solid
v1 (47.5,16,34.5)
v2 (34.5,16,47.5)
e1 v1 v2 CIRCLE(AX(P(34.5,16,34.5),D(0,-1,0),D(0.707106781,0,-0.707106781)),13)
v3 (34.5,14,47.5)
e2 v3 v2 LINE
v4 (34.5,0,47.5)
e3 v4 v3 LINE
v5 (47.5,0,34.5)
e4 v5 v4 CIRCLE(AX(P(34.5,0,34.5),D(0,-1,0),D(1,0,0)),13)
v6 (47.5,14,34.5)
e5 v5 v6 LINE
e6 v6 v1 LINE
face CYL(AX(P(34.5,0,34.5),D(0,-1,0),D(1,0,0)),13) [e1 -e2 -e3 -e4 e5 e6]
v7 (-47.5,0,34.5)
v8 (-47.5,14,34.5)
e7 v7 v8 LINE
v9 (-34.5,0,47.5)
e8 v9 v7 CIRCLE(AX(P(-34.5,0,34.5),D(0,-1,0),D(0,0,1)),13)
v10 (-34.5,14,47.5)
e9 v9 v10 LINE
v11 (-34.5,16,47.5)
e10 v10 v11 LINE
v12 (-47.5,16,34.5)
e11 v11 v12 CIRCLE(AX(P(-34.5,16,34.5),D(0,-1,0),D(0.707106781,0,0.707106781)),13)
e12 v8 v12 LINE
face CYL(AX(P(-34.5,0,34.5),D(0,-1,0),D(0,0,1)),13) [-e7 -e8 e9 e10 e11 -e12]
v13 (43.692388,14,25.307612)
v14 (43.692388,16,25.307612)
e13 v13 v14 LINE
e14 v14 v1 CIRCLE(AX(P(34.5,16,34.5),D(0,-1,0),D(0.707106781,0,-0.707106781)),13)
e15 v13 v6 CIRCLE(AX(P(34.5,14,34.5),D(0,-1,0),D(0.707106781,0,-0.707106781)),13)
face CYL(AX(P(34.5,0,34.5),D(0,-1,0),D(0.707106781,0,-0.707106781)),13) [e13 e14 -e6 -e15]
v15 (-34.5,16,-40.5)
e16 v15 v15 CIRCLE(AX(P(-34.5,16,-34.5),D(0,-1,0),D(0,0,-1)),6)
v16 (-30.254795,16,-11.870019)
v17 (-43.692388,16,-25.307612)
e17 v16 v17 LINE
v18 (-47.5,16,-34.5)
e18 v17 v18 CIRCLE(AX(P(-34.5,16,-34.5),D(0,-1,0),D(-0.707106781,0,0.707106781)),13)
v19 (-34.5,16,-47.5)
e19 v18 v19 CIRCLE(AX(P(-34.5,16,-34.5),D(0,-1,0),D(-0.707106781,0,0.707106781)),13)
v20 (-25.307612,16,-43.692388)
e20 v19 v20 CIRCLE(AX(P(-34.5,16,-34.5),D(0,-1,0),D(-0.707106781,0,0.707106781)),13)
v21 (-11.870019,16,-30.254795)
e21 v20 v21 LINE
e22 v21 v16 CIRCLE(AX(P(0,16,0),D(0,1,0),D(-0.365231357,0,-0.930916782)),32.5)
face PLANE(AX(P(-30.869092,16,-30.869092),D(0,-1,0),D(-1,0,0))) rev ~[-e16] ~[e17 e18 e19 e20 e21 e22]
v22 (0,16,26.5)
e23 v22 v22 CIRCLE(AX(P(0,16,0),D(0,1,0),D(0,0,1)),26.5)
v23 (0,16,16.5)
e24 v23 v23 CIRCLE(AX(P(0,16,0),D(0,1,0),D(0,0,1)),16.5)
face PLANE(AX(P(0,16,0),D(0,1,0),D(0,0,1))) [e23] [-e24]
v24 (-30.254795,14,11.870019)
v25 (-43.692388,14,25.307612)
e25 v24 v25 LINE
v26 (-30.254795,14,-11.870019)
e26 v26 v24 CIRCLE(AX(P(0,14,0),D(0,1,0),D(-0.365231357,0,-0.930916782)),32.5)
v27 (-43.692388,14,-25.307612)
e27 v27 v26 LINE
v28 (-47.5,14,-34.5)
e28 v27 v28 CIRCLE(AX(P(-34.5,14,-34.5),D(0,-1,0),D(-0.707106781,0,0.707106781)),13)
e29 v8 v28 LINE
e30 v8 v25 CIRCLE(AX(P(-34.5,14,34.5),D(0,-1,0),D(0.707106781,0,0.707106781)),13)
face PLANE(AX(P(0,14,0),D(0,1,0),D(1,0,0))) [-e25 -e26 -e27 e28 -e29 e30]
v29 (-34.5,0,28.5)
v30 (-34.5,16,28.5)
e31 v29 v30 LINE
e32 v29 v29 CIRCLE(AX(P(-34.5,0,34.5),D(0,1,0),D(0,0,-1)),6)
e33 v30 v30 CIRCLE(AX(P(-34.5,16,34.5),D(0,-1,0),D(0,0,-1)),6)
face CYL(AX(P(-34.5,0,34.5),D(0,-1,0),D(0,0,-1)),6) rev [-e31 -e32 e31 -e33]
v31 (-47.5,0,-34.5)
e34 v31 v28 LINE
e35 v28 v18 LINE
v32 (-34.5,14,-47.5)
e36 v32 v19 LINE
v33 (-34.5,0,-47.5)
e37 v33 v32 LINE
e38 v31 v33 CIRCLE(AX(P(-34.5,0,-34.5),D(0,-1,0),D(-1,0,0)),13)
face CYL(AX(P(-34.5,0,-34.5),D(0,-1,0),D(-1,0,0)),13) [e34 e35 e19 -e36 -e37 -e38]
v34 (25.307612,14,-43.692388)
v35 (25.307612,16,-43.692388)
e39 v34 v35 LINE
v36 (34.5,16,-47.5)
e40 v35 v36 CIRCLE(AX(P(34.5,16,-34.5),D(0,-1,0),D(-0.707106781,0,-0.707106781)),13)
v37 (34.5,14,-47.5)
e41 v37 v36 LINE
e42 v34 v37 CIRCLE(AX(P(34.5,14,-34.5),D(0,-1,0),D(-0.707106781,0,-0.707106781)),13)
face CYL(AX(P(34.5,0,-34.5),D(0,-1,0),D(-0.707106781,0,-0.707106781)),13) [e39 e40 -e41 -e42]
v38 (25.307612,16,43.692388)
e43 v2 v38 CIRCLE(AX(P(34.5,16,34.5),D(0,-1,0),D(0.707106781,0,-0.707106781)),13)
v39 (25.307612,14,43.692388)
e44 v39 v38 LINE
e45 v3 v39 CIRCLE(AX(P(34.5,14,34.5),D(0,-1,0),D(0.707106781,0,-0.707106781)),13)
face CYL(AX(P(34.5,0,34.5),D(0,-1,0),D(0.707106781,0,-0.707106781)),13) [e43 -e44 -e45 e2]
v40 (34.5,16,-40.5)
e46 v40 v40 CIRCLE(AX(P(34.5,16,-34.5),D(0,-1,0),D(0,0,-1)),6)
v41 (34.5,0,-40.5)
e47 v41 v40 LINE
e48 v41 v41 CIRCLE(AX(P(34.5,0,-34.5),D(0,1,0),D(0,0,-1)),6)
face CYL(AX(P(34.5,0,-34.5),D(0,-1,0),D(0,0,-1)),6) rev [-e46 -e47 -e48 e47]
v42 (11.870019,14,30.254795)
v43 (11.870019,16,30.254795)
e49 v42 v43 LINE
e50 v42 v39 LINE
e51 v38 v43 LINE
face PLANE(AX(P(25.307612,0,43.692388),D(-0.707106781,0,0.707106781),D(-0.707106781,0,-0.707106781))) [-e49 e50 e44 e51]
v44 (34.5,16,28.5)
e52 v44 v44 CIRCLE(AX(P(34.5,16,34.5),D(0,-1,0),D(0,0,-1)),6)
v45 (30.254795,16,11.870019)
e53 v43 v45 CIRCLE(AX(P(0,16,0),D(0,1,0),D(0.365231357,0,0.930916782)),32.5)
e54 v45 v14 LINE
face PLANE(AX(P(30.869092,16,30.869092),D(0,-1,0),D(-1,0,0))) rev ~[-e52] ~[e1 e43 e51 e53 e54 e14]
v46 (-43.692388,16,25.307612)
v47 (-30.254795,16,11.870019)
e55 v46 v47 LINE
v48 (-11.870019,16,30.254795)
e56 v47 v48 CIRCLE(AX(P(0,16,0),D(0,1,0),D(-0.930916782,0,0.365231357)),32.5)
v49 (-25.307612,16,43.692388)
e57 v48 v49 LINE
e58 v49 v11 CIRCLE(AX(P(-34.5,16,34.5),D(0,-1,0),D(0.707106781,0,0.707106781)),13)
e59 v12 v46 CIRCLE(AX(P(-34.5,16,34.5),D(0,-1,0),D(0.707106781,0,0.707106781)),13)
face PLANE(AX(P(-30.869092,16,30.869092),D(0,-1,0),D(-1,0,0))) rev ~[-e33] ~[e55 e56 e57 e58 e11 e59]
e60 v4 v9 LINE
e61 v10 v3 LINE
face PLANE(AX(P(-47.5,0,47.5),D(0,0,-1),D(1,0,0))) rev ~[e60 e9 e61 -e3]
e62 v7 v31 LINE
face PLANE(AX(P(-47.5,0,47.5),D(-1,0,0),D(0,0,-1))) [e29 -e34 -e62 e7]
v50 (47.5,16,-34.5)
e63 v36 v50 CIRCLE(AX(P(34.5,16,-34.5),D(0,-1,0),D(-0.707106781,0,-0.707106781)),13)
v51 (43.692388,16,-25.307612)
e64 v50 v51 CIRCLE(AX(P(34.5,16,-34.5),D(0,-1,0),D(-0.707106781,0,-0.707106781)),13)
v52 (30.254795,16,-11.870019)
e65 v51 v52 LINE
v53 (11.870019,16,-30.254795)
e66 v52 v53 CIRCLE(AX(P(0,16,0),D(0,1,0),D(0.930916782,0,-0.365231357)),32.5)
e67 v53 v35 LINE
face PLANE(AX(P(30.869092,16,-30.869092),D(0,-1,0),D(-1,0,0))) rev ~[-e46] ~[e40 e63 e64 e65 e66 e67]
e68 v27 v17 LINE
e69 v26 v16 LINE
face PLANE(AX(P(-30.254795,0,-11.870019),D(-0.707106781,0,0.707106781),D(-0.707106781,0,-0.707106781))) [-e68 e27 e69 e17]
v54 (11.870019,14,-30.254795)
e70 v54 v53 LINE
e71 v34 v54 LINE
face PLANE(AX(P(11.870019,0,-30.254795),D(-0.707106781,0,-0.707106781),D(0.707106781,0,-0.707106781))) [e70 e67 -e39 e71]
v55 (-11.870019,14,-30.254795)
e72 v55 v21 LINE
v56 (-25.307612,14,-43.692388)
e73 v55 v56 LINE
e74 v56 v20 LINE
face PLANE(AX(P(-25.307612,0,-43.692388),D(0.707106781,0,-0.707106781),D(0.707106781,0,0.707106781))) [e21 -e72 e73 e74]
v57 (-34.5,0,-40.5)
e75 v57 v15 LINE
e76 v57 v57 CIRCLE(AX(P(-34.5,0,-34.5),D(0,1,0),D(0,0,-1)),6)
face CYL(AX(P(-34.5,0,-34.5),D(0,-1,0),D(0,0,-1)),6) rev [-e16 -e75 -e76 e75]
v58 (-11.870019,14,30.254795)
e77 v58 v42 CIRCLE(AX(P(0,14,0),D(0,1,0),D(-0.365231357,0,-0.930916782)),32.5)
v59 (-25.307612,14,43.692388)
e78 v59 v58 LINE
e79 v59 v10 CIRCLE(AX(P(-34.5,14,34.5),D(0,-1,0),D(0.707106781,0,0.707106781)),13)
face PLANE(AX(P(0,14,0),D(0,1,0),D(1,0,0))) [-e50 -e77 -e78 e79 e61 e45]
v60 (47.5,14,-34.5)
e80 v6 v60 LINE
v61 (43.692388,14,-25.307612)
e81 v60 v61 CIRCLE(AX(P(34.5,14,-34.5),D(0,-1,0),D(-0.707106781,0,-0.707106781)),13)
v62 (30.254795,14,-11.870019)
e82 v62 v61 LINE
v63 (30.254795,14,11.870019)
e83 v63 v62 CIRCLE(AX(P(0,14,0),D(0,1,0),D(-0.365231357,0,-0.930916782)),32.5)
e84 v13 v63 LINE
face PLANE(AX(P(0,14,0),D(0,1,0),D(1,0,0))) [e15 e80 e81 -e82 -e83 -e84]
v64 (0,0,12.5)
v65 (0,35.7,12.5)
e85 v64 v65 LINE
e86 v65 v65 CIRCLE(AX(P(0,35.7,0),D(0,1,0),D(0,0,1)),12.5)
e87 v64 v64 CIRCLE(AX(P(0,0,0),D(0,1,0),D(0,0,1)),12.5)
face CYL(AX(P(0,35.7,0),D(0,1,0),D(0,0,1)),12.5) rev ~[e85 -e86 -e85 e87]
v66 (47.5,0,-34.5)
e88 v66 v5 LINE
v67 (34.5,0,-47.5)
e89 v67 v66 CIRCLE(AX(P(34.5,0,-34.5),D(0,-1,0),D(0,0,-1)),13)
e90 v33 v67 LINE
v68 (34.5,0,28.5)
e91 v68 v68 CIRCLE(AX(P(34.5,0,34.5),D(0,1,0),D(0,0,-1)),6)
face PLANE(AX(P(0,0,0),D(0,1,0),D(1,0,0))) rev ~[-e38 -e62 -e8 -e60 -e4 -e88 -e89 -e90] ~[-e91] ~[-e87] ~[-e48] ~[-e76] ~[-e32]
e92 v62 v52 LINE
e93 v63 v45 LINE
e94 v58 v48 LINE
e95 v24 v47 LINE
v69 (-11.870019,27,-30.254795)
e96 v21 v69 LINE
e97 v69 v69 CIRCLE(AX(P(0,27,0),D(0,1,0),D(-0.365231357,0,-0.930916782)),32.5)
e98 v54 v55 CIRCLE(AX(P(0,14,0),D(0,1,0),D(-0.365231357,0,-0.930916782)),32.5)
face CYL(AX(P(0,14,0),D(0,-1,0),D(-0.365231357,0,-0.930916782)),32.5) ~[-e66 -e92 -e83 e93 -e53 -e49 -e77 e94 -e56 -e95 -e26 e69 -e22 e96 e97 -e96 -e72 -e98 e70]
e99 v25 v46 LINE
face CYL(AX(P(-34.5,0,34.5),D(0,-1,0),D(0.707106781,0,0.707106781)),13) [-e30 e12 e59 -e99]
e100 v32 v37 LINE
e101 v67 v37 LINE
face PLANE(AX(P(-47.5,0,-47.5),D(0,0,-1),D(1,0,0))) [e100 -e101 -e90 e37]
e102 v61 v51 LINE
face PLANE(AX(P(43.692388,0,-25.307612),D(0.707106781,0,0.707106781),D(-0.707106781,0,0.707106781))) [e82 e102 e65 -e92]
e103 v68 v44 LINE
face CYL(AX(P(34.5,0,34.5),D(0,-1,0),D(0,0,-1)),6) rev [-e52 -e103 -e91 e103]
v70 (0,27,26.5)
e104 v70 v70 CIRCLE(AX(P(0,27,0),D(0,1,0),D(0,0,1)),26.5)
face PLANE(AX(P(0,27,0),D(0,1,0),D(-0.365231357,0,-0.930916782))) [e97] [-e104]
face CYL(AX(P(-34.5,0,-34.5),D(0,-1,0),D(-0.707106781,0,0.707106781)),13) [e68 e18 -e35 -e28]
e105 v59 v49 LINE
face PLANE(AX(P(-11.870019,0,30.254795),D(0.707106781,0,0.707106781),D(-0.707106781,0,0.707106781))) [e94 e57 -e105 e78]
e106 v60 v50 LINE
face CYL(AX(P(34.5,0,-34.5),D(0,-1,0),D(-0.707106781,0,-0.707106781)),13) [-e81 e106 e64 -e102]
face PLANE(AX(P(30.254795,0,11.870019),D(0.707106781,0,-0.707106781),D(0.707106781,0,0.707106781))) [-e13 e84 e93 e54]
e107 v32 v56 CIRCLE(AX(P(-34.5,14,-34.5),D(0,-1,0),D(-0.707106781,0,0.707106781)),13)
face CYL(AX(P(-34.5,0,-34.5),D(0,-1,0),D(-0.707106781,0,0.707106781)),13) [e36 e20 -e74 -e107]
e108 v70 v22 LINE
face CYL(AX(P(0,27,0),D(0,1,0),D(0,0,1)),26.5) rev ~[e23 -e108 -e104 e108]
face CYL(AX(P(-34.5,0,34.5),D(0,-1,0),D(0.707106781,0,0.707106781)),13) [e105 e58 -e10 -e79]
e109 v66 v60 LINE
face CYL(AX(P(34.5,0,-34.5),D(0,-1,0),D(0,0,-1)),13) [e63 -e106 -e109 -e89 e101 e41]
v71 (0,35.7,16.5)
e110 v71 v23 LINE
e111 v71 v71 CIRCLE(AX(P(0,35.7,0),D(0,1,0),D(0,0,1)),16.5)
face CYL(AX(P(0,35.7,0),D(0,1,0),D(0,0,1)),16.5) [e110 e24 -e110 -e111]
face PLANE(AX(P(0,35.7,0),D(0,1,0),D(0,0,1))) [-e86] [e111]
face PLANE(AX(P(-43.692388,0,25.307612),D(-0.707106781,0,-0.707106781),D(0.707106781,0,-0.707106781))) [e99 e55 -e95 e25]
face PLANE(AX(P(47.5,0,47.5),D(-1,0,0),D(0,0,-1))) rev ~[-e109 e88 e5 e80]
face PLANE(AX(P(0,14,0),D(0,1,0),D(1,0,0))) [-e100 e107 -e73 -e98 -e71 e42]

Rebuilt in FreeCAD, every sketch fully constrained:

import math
import FreeCAD as App
import Part
import Sketcher

V = App.Vector
Q = App.Units.Quantity

doc = App.newDocument("Part")
body = doc.addObject("PartDesign::Body", "Body")

# Sketch on XZ plane
sketch1 = body.newObject("Sketcher::SketchObject", "Sketch")
sketch1.AttachmentSupport = (doc.getObject("XZ_Plane"), [""])
sketch1.MapMode = "FlatFace"
sketch1.addGeometry([
    Part.LineSegment(V(-48, -48, 0), V(-48, 48, 0)),
    Part.LineSegment(V(-48, 48, 0), V(48, 48, 0)),
    Part.LineSegment(V(48, 48, 0), V(48, -48, 0)),
    Part.LineSegment(V(48, -48, 0), V(-48, -48, 0)),
], False)
sketch1.addConstraint([
    Sketcher.Constraint("Coincident", 0, 2, 1, 1),
    Sketcher.Constraint("Coincident", 1, 2, 2, 1),
    Sketcher.Constraint("Coincident", 2, 2, 3, 1),
    Sketcher.Constraint("Coincident", 3, 2, 0, 1),
    Sketcher.Constraint("Vertical", 0),
    Sketcher.Constraint("Horizontal", 1),
    Sketcher.Constraint("Vertical", 2),
    Sketcher.Constraint("Horizontal", 3),
    Sketcher.Constraint("Symmetric", 0, 2, 2, 2, -1, 1),
    Sketcher.Constraint("Equal", 3, 0),
    Sketcher.Constraint("DistanceX", 1, 1, 1, 2, Q("95 mm")),
])
pad1 = body.newObject("PartDesign::Pad", "Pad")
pad1.Profile = sketch1
pad1.Length = 14
pad1.Reversed = True

# Sketch on XZ plane
sketch2 = body.newObject("Sketcher::SketchObject", "Sketch001")
sketch2.AttachmentSupport = (doc.getObject("XZ_Plane"), [""])
sketch2.MapMode = "FlatFace"
sketch2.addGeometry([
    Part.LineSegment(V(-44, -25, 0), V(-30, -12, 0)),  # 0
    Part.ArcOfCircle(Part.Circle(V(0, 0, 0), V(0, 0, 1), 32), math.radians(-159), math.radians(-111)),  # 1
    Part.LineSegment(V(-12, -30, 0), V(-25, -44, 0)),  # 2
    Part.ArcOfCircle(Part.Circle(V(-34, -34, 0), V(0, 0, 1), 13), math.radians(135), math.radians(315)),  # 3
    Part.LineSegment(V(25, -44, 0), V(12, -30, 0)),  # 4
    Part.ArcOfCircle(Part.Circle(V(0, 0, 0), V(0, 0, 1), 32), math.radians(-69), math.radians(-21)),  # 5
    Part.LineSegment(V(30, -12, 0), V(44, -25, 0)),  # 6
    Part.ArcOfCircle(Part.Circle(V(34, -34, 0), V(0, 0, 1), 13), math.radians(-135), math.radians(45)),  # 7
    Part.LineSegment(V(44, 25, 0), V(30, 12, 0)),  # 8
    Part.ArcOfCircle(Part.Circle(V(0, 0, 0), V(0, 0, 1), 32), math.radians(21), math.radians(69)),  # 9
    Part.LineSegment(V(12, 30, 0), V(25, 44, 0)),  # 10
    Part.ArcOfCircle(Part.Circle(V(34, 34, 0), V(0, 0, 1), 13), math.radians(-45), math.radians(135)),  # 11
    Part.LineSegment(V(-25, 44, 0), V(-12, 30, 0)),  # 12
    Part.ArcOfCircle(Part.Circle(V(0, 0, 0), V(0, 0, 1), 32), math.radians(111), math.radians(159)),  # 13
    Part.LineSegment(V(-30, 12, 0), V(-44, 25, 0)),  # 14
    Part.ArcOfCircle(Part.Circle(V(-34, 34, 0), V(0, 0, 1), 13), math.radians(45), math.radians(225)),  # 15
], False)
sketch2.addConstraint([
    Sketcher.Constraint("Coincident", 0, 2, 1, 1),
    Sketcher.Constraint("Coincident", 1, 2, 2, 1),
    Sketcher.Constraint("Tangent", 2, 2, 3, 2),
    Sketcher.Constraint("Tangent", 3, 1, 0, 1),
    Sketcher.Constraint("Coincident", 4, 2, 5, 1),
    Sketcher.Constraint("Coincident", 5, 2, 6, 1),
    Sketcher.Constraint("Tangent", 6, 2, 7, 2),
    Sketcher.Constraint("Tangent", 7, 1, 4, 1),
    Sketcher.Constraint("Coincident", 8, 2, 9, 1),
    Sketcher.Constraint("Coincident", 9, 2, 10, 1),
    Sketcher.Constraint("Tangent", 10, 2, 11, 2),
    Sketcher.Constraint("Tangent", 11, 1, 8, 1),
    Sketcher.Constraint("Coincident", 12, 2, 13, 1),
    Sketcher.Constraint("Coincident", 13, 2, 14, 1),
    Sketcher.Constraint("Tangent", 14, 2, 15, 2),
    Sketcher.Constraint("Tangent", 15, 1, 12, 1),
    Sketcher.Constraint("Coincident", 1, 3, -1, 1),
    Sketcher.Constraint("Coincident", 5, 3, -1, 1),
    Sketcher.Constraint("Coincident", 9, 3, -1, 1),
    Sketcher.Constraint("Coincident", 13, 3, -1, 1),
    Sketcher.Constraint("Equal", 1, 5),
    Sketcher.Constraint("Equal", 3, 7),
    Sketcher.Constraint("Equal", 5, 9),
    Sketcher.Constraint("Equal", 7, 11),
    Sketcher.Constraint("Equal", 9, 13),
    Sketcher.Constraint("Equal", 11, 15),
    Sketcher.Constraint("Symmetric", 3, 3, 11, 3, -1, 1),
    Sketcher.Constraint("Symmetric", 7, 3, 15, 3, -1, 1),
    Sketcher.Constraint("Symmetric", 3, 3, 7, 3, -2),
    Sketcher.Constraint("Parallel", 0, 2),
    Sketcher.Constraint("Perpendicular", 2, 4),
    Sketcher.Constraint("Parallel", 4, 6),
    Sketcher.Constraint("Perpendicular", 6, 8),
    Sketcher.Constraint("Parallel", 8, 10),
    Sketcher.Constraint("Perpendicular", 10, 12),
    Sketcher.Constraint("Parallel", 12, 14),
    Sketcher.Constraint("Horizontal", 1, 2, 4, 2),
    Sketcher.Constraint("Equal", 0, 2),
    Sketcher.Constraint("Radius", 3, Q("13 mm")),
    Sketcher.Constraint("Radius", 1, Q("32.5 mm")),
    Sketcher.Constraint("DistanceX", 3, 3, 7, 3, Q("69 mm")),
])
pad2 = body.newObject("PartDesign::Pad", "Pad001")
pad2.Profile = sketch2
pad2.Length = 16
pad2.Reversed = True

# Sketch on XZ plane
sketch3 = body.newObject("Sketcher::SketchObject", "Sketch002")
sketch3.AttachmentSupport = (doc.getObject("XZ_Plane"), [""])
sketch3.MapMode = "FlatFace"
sketch3.AttachmentOffset = App.Placement(V(0, 0, -14), App.Rotation())
sketch3.addGeometry(Part.Circle(V(0, 0, 0), V(0, 0, 1), 32), False)
sketch3.addConstraint([
    Sketcher.Constraint("Coincident", 0, 3, -1, 1),
    Sketcher.Constraint("Diameter", 0, Q("65 mm")),
])
pad3 = body.newObject("PartDesign::Pad", "Pad002")
pad3.Profile = sketch3
pad3.Length = 13
pad3.Reversed = True

# Sketch on XZ plane
sketch4 = body.newObject("Sketcher::SketchObject", "Sketch003")
sketch4.AttachmentSupport = (doc.getObject("XZ_Plane"), [""])
sketch4.MapMode = "FlatFace"
sketch4.AttachmentOffset = App.Placement(V(0, 0, -27), App.Rotation())
sketch4.addGeometry(Part.Circle(V(0, 0, 0), V(0, 0, 1), 12), False)
sketch4.addConstraint([
    Sketcher.Constraint("Coincident", 0, 3, -1, 1),
    Sketcher.Constraint("Diameter", 0, Q("25 mm")),
])
pocket1 = body.newObject("PartDesign::Pocket", "Pocket")
pocket1.Profile = sketch4
pocket1.Type = "ThroughAll"
pocket1.Reversed = True

# Sketch on XZ plane
sketch5 = body.newObject("Sketcher::SketchObject", "Sketch004")
sketch5.AttachmentSupport = (doc.getObject("XZ_Plane"), [""])
sketch5.MapMode = "FlatFace"
sketch5.AttachmentOffset = App.Placement(V(0, 0, -27), App.Rotation())
sketch5.addGeometry([
    Part.Circle(V(0, 0, 0), V(0, 0, 1), 26),
    Part.Circle(V(0, 0, 0), V(0, 0, 1), 16),
], False)
sketch5.addConstraint([
    Sketcher.Constraint("Coincident", 0, 3, -1, 1),
    Sketcher.Constraint("Coincident", 1, 3, -1, 1),
    Sketcher.Constraint("Diameter", 0, Q("53 mm")),
    Sketcher.Constraint("Diameter", 1, Q("33 mm")),
])
pocket2 = body.newObject("PartDesign::Pocket", "Pocket001")
pocket2.Profile = sketch5
pocket2.Length = 11
pocket2.Reversed = True

# Sketch on XZ plane
sketch6 = body.newObject("Sketcher::SketchObject", "Sketch005")
sketch6.AttachmentSupport = (doc.getObject("XZ_Plane"), [""])
sketch6.MapMode = "FlatFace"
sketch6.AttachmentOffset = App.Placement(V(0, 0, -35.7), App.Rotation())
sketch6.addGeometry([
    Part.Circle(V(0, 0, 0), V(0, 0, 1), 16),
    Part.Circle(V(0, 0, 0), V(0, 0, 1), 12),
], False)
sketch6.addConstraint([
    Sketcher.Constraint("Coincident", 0, 3, -1, 1),
    Sketcher.Constraint("Coincident", 1, 3, -1, 1),
    Sketcher.Constraint("Diameter", 0, Q("33 mm")),
    Sketcher.Constraint("Diameter", 1, Q("25 mm")),
])
pad4 = body.newObject("PartDesign::Pad", "Pad003")
pad4.Profile = sketch6
pad4.Length = 35.7

# Sketch on XZ plane
sketch7 = body.newObject("Sketcher::SketchObject", "Sketch006")
sketch7.AttachmentSupport = (doc.getObject("XZ_Plane"), [""])
sketch7.MapMode = "FlatFace"
sketch7.addGeometry([
    Part.LineSegment(V(-48, 34, 0), V(-48, 48, 0)),  # 0
    Part.LineSegment(V(-48, 48, 0), V(-34, 48, 0)),  # 1
    Part.ArcOfCircle(Part.Circle(V(-34, 34, 0), V(0, 0, 1), 13), math.radians(90), math.radians(180)),  # 2
    Part.LineSegment(V(-34, -48, 0), V(-48, -48, 0)),  # 3
    Part.LineSegment(V(-48, -48, 0), V(-48, -34, 0)),  # 4
    Part.ArcOfCircle(Part.Circle(V(-34, -34, 0), V(0, 0, 1), 13), math.radians(-180), math.radians(-90)),  # 5
    Part.LineSegment(V(48, -34, 0), V(48, -48, 0)),  # 6
    Part.LineSegment(V(48, -48, 0), V(34, -48, 0)),  # 7
    Part.ArcOfCircle(Part.Circle(V(34, -34, 0), V(0, 0, 1), 13), math.radians(-90), math.radians(0)),  # 8
    Part.LineSegment(V(34, 48, 0), V(48, 48, 0)),  # 9
    Part.LineSegment(V(48, 48, 0), V(48, 34, 0)),  # 10
    Part.ArcOfCircle(Part.Circle(V(34, 34, 0), V(0, 0, 1), 13), math.radians(0), math.radians(90)),  # 11
], False)
sketch7.addConstraint([
    Sketcher.Constraint("Coincident", 0, 2, 1, 1),
    Sketcher.Constraint("Tangent", 1, 2, 2, 1),
    Sketcher.Constraint("Tangent", 2, 2, 0, 1),
    Sketcher.Constraint("Coincident", 3, 2, 4, 1),
    Sketcher.Constraint("Tangent", 4, 2, 5, 1),
    Sketcher.Constraint("Tangent", 5, 2, 3, 1),
    Sketcher.Constraint("Coincident", 6, 2, 7, 1),
    Sketcher.Constraint("Tangent", 7, 2, 8, 1),
    Sketcher.Constraint("Tangent", 8, 2, 6, 1),
    Sketcher.Constraint("Coincident", 9, 2, 10, 1),
    Sketcher.Constraint("Tangent", 10, 2, 11, 1),
    Sketcher.Constraint("Tangent", 11, 2, 9, 1),
    Sketcher.Constraint("Vertical", 0),
    Sketcher.Constraint("Horizontal", 1),
    Sketcher.Constraint("Horizontal", 3),
    Sketcher.Constraint("Vertical", 4),
    Sketcher.Constraint("Vertical", 6),
    Sketcher.Constraint("Horizontal", 7),
    Sketcher.Constraint("Horizontal", 9),
    Sketcher.Constraint("Vertical", 10),
    Sketcher.Constraint("Equal", 2, 5),
    Sketcher.Constraint("Equal", 5, 8),
    Sketcher.Constraint("Equal", 8, 11),
    Sketcher.Constraint("Symmetric", 2, 3, 8, 3, -1, 1),
    Sketcher.Constraint("Symmetric", 5, 3, 11, 3, -1, 1),
    Sketcher.Constraint("Symmetric", 5, 3, 8, 3, -2),
    Sketcher.Constraint("Radius", 2, Q("13 mm")),
    Sketcher.Constraint("DistanceY", 5, 3, 2, 3, Q("69 mm")),
    Sketcher.Constraint("DistanceX", 5, 3, 8, 3, Q("69 mm")),
])
pocket3 = body.newObject("PartDesign::Pocket", "Pocket002")
pocket3.Profile = sketch7
pocket3.Type = "ThroughAll"

# Sketch on XZ plane
sketch8 = body.newObject("Sketcher::SketchObject", "Sketch007")
sketch8.AttachmentSupport = (doc.getObject("XZ_Plane"), [""])
sketch8.MapMode = "FlatFace"
sketch8.addGeometry([
    Part.Circle(V(-34, -34, 0), V(0, 0, 1), 6),
    Part.Circle(V(34, -34, 0), V(0, 0, 1), 6),
    Part.Circle(V(34, 34, 0), V(0, 0, 1), 6),
    Part.Circle(V(-34, 34, 0), V(0, 0, 1), 6),
], False)
sketch8.addConstraint([
    Sketcher.Constraint("Equal", 0, 1),
    Sketcher.Constraint("Equal", 1, 2),
    Sketcher.Constraint("Equal", 2, 3),
    Sketcher.Constraint("Symmetric", 0, 3, 2, 3, -1, 1),
    Sketcher.Constraint("Symmetric", 1, 3, 3, 3, -1, 1),
    Sketcher.Constraint("Symmetric", 0, 3, 1, 3, -2),
    Sketcher.Constraint("Diameter", 0, Q("12 mm")),
    Sketcher.Constraint("DistanceX", 0, 3, 1, 3, Q("69 mm")),
    Sketcher.Constraint("DistanceY", 1, 3, 2, 3, Q("69 mm")),
])
pocket4 = body.newObject("PartDesign::Pocket", "Pocket003")
pocket4.Profile = sketch8
pocket4.Type = "ThroughAll"

doc.recompute()
